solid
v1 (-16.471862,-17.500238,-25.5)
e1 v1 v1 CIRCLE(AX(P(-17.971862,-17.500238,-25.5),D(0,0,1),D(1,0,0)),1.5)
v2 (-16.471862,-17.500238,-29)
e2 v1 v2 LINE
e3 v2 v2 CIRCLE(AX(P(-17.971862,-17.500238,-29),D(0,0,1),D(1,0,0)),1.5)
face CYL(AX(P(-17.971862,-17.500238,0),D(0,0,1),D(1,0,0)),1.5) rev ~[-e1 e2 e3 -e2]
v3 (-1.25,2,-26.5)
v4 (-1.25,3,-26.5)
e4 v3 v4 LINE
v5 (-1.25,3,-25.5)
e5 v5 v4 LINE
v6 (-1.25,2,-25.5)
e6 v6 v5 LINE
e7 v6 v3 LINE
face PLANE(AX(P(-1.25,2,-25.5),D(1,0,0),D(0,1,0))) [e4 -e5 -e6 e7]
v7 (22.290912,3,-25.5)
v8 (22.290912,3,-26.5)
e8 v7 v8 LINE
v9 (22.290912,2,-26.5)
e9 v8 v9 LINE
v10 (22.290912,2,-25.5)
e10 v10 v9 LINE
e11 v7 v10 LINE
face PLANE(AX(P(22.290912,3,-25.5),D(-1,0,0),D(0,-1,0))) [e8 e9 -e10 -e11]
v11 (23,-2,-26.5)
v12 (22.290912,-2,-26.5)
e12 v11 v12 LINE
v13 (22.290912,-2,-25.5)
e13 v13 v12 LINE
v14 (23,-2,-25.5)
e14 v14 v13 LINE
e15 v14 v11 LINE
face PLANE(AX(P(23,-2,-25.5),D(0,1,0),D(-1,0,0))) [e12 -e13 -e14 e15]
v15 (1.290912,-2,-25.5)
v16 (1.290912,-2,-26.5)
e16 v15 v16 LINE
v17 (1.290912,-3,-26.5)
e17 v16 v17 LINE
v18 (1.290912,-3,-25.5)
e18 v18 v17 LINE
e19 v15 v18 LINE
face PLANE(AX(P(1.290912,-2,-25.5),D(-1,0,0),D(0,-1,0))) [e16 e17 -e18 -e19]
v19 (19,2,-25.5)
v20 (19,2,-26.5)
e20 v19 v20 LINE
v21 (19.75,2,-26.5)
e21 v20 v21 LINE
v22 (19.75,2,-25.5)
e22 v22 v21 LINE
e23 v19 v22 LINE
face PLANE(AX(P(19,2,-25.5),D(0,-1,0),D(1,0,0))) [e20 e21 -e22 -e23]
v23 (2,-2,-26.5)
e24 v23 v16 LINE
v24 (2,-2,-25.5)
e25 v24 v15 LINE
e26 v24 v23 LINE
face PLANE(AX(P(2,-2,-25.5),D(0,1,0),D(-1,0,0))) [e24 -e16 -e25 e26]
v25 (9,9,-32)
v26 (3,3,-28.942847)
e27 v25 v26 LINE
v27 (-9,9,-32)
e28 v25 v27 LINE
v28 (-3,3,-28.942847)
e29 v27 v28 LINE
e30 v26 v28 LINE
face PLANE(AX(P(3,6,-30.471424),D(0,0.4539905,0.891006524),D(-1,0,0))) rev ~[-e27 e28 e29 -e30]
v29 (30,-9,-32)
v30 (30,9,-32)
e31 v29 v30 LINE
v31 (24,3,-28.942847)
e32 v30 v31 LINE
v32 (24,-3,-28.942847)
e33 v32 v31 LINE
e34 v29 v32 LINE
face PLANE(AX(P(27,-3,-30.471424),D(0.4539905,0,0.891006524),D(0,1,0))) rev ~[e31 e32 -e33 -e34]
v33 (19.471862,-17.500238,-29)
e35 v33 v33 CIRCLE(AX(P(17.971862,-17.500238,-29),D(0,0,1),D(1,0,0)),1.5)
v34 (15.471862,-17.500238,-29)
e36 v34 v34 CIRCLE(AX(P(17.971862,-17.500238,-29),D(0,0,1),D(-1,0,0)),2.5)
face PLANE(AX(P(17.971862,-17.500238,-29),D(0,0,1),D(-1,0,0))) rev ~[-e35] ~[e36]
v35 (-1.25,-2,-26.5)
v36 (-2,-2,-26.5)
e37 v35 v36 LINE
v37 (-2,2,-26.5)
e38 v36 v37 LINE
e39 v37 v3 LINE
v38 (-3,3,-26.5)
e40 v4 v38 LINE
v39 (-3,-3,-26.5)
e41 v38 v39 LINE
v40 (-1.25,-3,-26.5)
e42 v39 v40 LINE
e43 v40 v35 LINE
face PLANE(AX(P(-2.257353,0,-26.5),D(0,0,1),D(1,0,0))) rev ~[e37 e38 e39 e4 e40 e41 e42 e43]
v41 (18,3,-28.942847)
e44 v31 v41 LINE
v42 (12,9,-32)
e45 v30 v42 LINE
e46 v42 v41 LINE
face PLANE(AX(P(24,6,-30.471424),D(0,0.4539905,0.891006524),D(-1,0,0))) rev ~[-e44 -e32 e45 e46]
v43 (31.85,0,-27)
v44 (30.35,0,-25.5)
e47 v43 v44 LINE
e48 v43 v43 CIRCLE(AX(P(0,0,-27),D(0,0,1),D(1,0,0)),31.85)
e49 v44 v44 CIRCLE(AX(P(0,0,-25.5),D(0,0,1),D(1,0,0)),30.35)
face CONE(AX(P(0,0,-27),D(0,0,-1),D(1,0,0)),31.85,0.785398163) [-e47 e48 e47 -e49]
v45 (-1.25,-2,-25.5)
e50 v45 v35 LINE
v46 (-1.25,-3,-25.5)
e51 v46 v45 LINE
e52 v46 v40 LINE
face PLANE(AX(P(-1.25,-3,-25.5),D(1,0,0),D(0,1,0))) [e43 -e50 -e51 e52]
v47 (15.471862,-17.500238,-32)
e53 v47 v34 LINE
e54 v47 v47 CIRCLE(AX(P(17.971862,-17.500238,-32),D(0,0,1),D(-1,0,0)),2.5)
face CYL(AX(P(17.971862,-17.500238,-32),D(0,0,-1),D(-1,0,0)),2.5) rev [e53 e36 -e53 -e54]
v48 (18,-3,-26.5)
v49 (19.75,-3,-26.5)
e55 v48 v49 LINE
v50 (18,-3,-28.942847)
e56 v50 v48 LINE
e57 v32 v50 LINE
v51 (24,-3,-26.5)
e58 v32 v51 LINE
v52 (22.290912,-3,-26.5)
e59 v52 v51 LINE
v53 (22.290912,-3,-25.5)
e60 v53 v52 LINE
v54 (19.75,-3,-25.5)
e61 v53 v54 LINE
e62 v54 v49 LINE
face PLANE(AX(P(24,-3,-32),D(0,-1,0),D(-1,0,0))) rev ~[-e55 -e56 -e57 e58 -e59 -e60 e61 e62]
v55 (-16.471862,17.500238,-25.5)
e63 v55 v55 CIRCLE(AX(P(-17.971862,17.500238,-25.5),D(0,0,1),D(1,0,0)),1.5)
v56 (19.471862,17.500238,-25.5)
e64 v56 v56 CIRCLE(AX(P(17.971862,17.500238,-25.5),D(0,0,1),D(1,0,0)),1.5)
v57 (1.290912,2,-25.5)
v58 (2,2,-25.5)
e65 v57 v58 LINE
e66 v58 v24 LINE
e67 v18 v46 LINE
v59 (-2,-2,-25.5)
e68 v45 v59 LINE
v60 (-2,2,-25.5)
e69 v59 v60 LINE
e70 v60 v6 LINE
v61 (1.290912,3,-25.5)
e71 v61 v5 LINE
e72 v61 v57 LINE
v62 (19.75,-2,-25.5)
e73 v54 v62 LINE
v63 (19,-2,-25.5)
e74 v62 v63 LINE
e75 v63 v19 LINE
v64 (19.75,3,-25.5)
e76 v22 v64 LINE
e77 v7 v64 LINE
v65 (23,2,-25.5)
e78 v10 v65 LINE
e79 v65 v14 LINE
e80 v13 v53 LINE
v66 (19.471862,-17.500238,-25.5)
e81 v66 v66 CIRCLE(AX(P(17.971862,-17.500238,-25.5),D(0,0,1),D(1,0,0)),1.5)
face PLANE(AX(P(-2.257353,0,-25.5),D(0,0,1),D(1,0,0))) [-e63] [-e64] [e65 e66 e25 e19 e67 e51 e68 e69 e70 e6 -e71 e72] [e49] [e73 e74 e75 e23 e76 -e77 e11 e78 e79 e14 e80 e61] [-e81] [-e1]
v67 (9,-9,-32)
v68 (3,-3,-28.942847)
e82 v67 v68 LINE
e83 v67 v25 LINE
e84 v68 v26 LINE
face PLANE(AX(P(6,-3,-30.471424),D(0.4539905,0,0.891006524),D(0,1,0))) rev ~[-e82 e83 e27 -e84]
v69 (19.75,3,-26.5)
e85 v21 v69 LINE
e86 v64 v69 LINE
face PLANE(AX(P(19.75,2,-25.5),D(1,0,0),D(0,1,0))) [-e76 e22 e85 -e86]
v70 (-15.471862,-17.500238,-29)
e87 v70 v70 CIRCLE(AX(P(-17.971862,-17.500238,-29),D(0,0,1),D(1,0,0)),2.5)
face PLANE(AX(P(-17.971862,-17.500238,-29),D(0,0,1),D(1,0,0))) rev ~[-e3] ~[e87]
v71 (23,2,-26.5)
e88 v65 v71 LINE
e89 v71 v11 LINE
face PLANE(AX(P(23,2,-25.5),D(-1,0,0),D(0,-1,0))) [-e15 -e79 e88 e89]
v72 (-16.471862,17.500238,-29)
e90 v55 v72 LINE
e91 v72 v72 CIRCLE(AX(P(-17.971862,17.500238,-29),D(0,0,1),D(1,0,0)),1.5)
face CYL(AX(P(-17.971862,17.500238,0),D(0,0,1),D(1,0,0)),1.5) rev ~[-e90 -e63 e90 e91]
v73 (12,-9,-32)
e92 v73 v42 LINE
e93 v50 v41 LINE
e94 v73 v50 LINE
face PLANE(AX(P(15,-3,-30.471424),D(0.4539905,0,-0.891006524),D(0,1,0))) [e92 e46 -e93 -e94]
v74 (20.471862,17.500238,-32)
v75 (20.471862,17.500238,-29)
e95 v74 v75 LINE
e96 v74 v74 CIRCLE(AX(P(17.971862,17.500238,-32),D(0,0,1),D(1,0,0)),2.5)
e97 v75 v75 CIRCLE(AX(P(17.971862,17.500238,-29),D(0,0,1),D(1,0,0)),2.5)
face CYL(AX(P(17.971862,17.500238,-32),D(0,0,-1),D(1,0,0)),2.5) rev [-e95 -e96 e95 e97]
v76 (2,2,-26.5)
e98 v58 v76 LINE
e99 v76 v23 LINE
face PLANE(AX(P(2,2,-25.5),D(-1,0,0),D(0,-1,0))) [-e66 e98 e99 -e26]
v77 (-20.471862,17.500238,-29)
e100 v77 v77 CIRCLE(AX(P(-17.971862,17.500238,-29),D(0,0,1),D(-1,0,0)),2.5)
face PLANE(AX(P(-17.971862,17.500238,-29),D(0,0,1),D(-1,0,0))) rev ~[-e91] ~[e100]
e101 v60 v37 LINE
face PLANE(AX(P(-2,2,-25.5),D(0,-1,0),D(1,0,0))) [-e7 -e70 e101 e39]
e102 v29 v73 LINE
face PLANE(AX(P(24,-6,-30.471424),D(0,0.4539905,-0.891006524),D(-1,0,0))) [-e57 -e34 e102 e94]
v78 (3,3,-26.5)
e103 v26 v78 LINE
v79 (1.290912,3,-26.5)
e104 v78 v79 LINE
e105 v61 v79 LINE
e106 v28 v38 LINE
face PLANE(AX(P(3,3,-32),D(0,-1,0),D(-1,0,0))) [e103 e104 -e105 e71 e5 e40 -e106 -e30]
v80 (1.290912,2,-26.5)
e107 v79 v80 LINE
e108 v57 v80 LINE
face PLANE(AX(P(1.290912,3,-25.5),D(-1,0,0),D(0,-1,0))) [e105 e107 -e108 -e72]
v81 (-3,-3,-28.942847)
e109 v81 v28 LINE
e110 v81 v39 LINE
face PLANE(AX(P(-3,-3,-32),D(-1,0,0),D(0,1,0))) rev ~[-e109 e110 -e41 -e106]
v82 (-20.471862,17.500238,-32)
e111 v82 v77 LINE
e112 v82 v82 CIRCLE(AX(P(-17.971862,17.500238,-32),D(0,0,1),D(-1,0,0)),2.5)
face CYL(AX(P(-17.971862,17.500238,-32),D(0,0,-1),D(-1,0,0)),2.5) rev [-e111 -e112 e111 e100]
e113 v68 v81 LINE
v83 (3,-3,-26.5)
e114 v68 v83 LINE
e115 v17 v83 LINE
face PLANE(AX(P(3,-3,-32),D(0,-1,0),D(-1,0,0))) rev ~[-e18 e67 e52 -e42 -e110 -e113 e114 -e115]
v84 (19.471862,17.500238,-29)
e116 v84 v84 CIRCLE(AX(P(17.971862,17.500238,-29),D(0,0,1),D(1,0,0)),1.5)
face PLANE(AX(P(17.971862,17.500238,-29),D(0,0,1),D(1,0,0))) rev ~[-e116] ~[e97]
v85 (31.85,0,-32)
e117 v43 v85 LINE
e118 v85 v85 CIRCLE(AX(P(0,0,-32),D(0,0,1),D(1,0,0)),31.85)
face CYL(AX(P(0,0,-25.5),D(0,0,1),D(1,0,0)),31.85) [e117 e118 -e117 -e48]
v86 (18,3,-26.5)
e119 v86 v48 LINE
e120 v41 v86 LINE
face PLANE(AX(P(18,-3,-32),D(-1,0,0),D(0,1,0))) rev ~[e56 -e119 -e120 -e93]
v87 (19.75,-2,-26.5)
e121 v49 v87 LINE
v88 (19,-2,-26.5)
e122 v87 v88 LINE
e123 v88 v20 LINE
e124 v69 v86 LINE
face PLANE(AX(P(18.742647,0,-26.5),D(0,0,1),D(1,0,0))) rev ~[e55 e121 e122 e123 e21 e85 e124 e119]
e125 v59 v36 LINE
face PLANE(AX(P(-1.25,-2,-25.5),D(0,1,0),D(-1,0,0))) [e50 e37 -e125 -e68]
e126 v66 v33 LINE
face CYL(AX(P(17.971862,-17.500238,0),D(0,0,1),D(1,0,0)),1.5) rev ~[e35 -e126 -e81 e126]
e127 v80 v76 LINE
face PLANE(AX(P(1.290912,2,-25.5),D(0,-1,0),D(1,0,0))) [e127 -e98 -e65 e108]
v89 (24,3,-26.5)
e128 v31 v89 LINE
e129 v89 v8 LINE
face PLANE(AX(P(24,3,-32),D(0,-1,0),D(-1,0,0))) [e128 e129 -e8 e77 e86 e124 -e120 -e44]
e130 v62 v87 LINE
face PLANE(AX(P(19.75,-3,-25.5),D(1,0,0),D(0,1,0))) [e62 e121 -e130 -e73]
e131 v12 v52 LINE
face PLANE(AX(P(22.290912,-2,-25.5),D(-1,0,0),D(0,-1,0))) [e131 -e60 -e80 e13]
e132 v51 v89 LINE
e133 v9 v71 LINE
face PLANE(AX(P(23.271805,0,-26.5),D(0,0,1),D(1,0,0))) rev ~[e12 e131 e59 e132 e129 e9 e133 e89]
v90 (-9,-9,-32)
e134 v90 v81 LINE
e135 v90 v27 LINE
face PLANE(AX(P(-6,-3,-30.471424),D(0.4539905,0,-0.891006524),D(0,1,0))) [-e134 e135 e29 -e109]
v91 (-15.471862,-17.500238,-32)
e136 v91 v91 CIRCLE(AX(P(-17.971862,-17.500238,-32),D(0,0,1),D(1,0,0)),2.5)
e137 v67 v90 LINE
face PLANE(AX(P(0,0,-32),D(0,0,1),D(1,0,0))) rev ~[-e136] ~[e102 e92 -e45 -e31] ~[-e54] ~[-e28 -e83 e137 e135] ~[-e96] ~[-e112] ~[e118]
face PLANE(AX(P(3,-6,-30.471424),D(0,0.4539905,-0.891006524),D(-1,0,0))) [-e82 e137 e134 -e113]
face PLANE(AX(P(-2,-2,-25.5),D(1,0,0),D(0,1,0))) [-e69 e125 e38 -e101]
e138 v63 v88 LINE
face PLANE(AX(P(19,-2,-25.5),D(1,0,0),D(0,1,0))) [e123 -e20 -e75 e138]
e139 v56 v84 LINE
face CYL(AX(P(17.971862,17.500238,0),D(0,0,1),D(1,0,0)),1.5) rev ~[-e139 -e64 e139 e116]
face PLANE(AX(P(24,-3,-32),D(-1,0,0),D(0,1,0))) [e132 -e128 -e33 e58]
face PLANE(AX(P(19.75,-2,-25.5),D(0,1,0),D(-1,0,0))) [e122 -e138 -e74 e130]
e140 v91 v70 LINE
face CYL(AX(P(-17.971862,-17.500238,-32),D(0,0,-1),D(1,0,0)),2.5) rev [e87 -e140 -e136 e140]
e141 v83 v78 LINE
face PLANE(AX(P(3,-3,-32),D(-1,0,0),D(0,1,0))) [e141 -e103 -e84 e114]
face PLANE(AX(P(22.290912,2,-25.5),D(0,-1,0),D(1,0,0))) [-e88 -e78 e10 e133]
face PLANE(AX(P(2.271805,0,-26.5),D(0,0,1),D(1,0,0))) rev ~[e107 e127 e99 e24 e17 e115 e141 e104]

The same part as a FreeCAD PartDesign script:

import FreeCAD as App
import Part
import Sketcher
from FreeCAD import Vector


def edges_at(feature, points):
    """Names of the edges that pass closest to the given points."""
    edges = feature.Shape.Edges
    near = lambda p: min(range(len(edges)), key=lambda i: edges[i].distToShape(Part.Vertex(*p))[0])
    return sorted({f"Edge{near(p) + 1}" for p in points})


def add_polygon(sketch, points):
    """Adds a closed chain of lines whose ends are joined by coincident constraints."""
    first, n = sketch.GeometryCount, len(points)
    for a, b in zip(points, points[1:] + points[:1]):
        sketch.addGeometry(Part.LineSegment(App.Vector(*a, 0), App.Vector(*b, 0)), False)
    for i in range(n):
        sketch.addConstraint(Sketcher.Constraint("Coincident", first + i, 2, first + (i + 1) % n, 1))

doc = App.newDocument("Part")
body = doc.addObject("PartDesign::Body", "Body")

# Sketch on XY plane
sketch1 = body.newObject("Sketcher::SketchObject", "Sketch")
sketch1.AttachmentSupport = (doc.getObject("XY_Plane"), [""])
sketch1.MapMode = "FlatFace"
sketch1.AttachmentOffset = App.Placement(Vector(0, 0, -25.5), App.Rotation())
sketch1.addGeometry(Part.Circle(Vector(0, 0, 0), Vector(0, 0, 1), 32), False)
sketch1.addConstraint(Sketcher.Constraint("Coincident", 0, 3, -1, 1))
sketch1.addConstraint(Sketcher.Constraint("Diameter", 0, 63.7))
pad1 = body.newObject("PartDesign::Pad", "Pad")
pad1.Profile = sketch1
pad1.Length = 6.5
pad1.Reversed = True

# Sketch on XY plane
sketch2 = body.newObject("Sketcher::SketchObject", "Sketch001")
sketch2.AttachmentSupport = (doc.getObject("XY_Plane"), [""])
sketch2.MapMode = "FlatFace"
sketch2.AttachmentOffset = App.Placement(Vector(0, 0, -32), App.Rotation())
add_polygon(sketch2, [(24, 3), (24, -3), (18, -3), (18, 3)])  # lines 0-3
add_polygon(sketch2, [(3, 3), (3, -3), (-3, -3), (-3, 3)])  # lines 4-7
sketch2.addConstraint(Sketcher.Constraint("Vertical", 0))
sketch2.addConstraint(Sketcher.Constraint("Horizontal", 1))
sketch2.addConstraint(Sketcher.Constraint("Vertical", 2))
sketch2.addConstraint(Sketcher.Constraint("Horizontal", 3))
sketch2.addConstraint(Sketcher.Constraint("Vertical", 4))
sketch2.addConstraint(Sketcher.Constraint("Horizontal", 5))
sketch2.addConstraint(Sketcher.Constraint("Vertical", 6))
sketch2.addConstraint(Sketcher.Constraint("Horizontal", 7))
sketch2.addConstraint(Sketcher.Constraint("Symmetric", 4, 2, 6, 2, -1, 1))
sketch2.addConstraint(Sketcher.Constraint("Horizontal", 1, 2, 4, 2))
sketch2.addConstraint(Sketcher.Constraint("Horizontal", 3, 2, 6, 2))
sketch2.addConstraint(Sketcher.Constraint("Equal", 3, 5))
sketch2.addConstraint(Sketcher.Constraint("Equal", 7, 0))
sketch2.addConstraint(Sketcher.Constraint("DistanceX", 1, 2, 1, 1, 6.0))
sketch2.addConstraint(Sketcher.Constraint("DistanceX", -1, 1, 0, 2, 24.0))
pocket1 = body.newObject("PartDesign::Pocket", "Pocket")
pocket1.Profile = sketch2
pocket1.Length = 6.5
pocket1.Reversed = True
doc.recompute()

chamfer = body.newObject("PartDesign::Chamfer", "Chamfer")
chamfer.Base = (pocket1, edges_at(pocket1, [
    (3, 0, -32),
    (0, -3, -32),
    (-3, 0, -32),
    (0, 3, -32),
    (24, 0, -32),
    (21, -3, -32),
    (18, 0, -32),
    (21, 3, -32),
]))
chamfer.ChamferType = "Two distances"
chamfer.Size = 6
chamfer.Size2 = 3.057153

# Sketch on XY plane
sketch3 = body.newObject("Sketcher::SketchObject", "Sketch002")
sketch3.AttachmentSupport = (doc.getObject("XY_Plane"), [""])
sketch3.MapMode = "FlatFace"
sketch3.addGeometry(Part.Circle(Vector(-18, -17.5, 0), Vector(0, 0, 1), 1.5), False)
sketch3.addGeometry(Part.Circle(Vector(18, -17.5, 0), Vector(0, 0, 1), 1.5), False)
sketch3.addGeometry(Part.Circle(Vector(18, 17.5, 0), Vector(0, 0, 1), 1.5), False)
sketch3.addGeometry(Part.Circle(Vector(-18, 17.5, 0), Vector(0, 0, 1), 1.5), False)
sketch3.addConstraint(Sketcher.Constraint("Equal", 0, 1))
sketch3.addConstraint(Sketcher.Constraint("Equal", 1, 2))
sketch3.addConstraint(Sketcher.Constraint("Equal", 2, 3))
sketch3.addConstraint(Sketcher.Constraint("Symmetric", 0, 3, 2, 3, -1, 1))
sketch3.addConstraint(Sketcher.Constraint("Symmetric", 1, 3, 3, 3, -1, 1))
sketch3.addConstraint(Sketcher.Constraint("Symmetric", 0, 3, 1, 3, -2))
sketch3.addConstraint(Sketcher.Constraint("Diameter", 0, 3.0))
sketch3.addConstraint(Sketcher.Constraint("DistanceX", 0, 3, -1, 1, 17.971862))
sketch3.addConstraint(Sketcher.Constraint("DistanceY", 0, 3, -1, 1, 17.500238))
pocket2 = body.newObject("PartDesign::Pocket", "Pocket001")
pocket2.Profile = sketch3
pocket2.Type = "ThroughAll"

# Sketch on XY plane
sketch4 = body.newObject("Sketcher::SketchObject", "Sketch003")
sketch4.AttachmentSupport = (doc.getObject("XY_Plane"), [""])
sketch4.MapMode = "FlatFace"
sketch4.AttachmentOffset = App.Placement(Vector(0, 0, -32), App.Rotation())
sketch4.addGeometry(Part.Circle(Vector(-18, -17.5, 0), Vector(0, 0, 1), 2.5), False)
sketch4.addGeometry(Part.Circle(Vector(18, -17.5, 0), Vector(0, 0, 1), 2.5), False)
sketch4.addGeometry(Part.Circle(Vector(18, 17.5, 0), Vector(0, 0, 1), 2.5), False)
sketch4.addGeometry(Part.Circle(Vector(-18, 17.5, 0), Vector(0, 0, 1), 2.5), False)
sketch4.addConstraint(Sketcher.Constraint("Equal", 0, 1))
sketch4.addConstraint(Sketcher.Constraint("Equal", 1, 2))
sketch4.addConstraint(Sketcher.Constraint("Equal", 2, 3))
sketch4.addConstraint(Sketcher.Constraint("Symmetric", 0, 3, 2, 3, -1, 1))
sketch4.addConstraint(Sketcher.Constraint("Symmetric", 1, 3, 3, 3, -1, 1))
sketch4.addConstraint(Sketcher.Constraint("Symmetric", 0, 3, 1, 3, -2))
sketch4.addConstraint(Sketcher.Constraint("Diameter", 0, 5.0))
sketch4.addConstraint(Sketcher.Constraint("DistanceX", 0, 3, -1, 1, 17.971862))
sketch4.addConstraint(Sketcher.Constraint("DistanceY", 0, 3, -1, 1, 17.500238))
pocket3 = body.newObject("PartDesign::Pocket", "Pocket002")
pocket3.Profile = sketch4
pocket3.Length = 3
pocket3.Reversed = True
doc.recompute()

chamfer2 = body.newObject("PartDesign::Chamfer", "Chamfer001")
chamfer2.Base = (pocket3, edges_at(pocket3, [(-31.85, 0, -25.5)]))
chamfer2.Size = 1.5

# Sketch on XY plane
sketch5 = body.newObject("Sketcher::SketchObject", "Sketch004")
sketch5.AttachmentSupport = (doc.getObject("XY_Plane"), [""])
sketch5.MapMode = "FlatFace"
sketch5.AttachmentOffset = App.Placement(Vector(0, 0, -25.5), App.Rotation())
add_polygon(sketch5, [(-1.2, -2), (-2, -2), (-2, 2), (-1.2, 2), (-1.2, 3), (-3, 3), (-3, -3), (-1.2, -3)])  # lines 0-7
add_polygon(sketch5, [(1.3, -3), (3, -3), (3, 3), (1.3, 3), (1.3, 2), (2, 2), (2, -2), (1.3, -2)])  # lines 8-15
add_polygon(sketch5, [(19.8, -2), (19, -2), (19, 2), (19.8, 2), (19.8, 3), (18, 3), (18, -3), (19.8, -3)])  # lines 16-23
add_polygon(sketch5, [(22.3, -3), (24, -3), (24, 3), (22.3, 3), (22.3, 2), (23, 2), (23, -2), (22.3, -2)])  # lines 24-31
sketch5.addConstraint(Sketcher.Constraint("Horizontal", 0))
sketch5.addConstraint(Sketcher.Constraint("Vertical", 1))
sketch5.addConstraint(Sketcher.Constraint("Horizontal", 2))
sketch5.addConstraint(Sketcher.Constraint("Vertical", 3))
sketch5.addConstraint(Sketcher.Constraint("Horizontal", 4))
sketch5.addConstraint(Sketcher.Constraint("Vertical", 5))
sketch5.addConstraint(Sketcher.Constraint("Horizontal", 6))
sketch5.addConstraint(Sketcher.Constraint("Vertical", 7))
sketch5.addConstraint(Sketcher.Constraint("Horizontal", 8))
sketch5.addConstraint(Sketcher.Constraint("Vertical", 9))
sketch5.addConstraint(Sketcher.Constraint("Horizontal", 10))
sketch5.addConstraint(Sketcher.Constraint("Vertical", 11))
sketch5.addConstraint(Sketcher.Constraint("Horizontal", 12))
sketch5.addConstraint(Sketcher.Constraint("Vertical", 13))
sketch5.addConstraint(Sketcher.Constraint("Horizontal", 14))
sketch5.addConstraint(Sketcher.Constraint("Vertical", 15))
sketch5.addConstraint(Sketcher.Constraint("Horizontal", 16))
sketch5.addConstraint(Sketcher.Constraint("Vertical", 17))
sketch5.addConstraint(Sketcher.Constraint("Horizontal", 18))
sketch5.addConstraint(Sketcher.Constraint("Vertical", 19))
sketch5.addConstraint(Sketcher.Constraint("Horizontal", 20))
sketch5.addConstraint(Sketcher.Constraint("Vertical", 21))
sketch5.addConstraint(Sketcher.Constraint("Horizontal", 22))
sketch5.addConstraint(Sketcher.Constraint("Vertical", 23))
sketch5.addConstraint(Sketcher.Constraint("Horizontal", 24))
sketch5.addConstraint(Sketcher.Constraint("Vertical", 25))
sketch5.addConstraint(Sketcher.Constraint("Horizontal", 26))
sketch5.addConstraint(Sketcher.Constraint("Vertical", 27))
sketch5.addConstraint(Sketcher.Constraint("Horizontal", 28))
sketch5.addConstraint(Sketcher.Constraint("Vertical", 29))
sketch5.addConstraint(Sketcher.Constraint("Horizontal", 30))
sketch5.addConstraint(Sketcher.Constraint("Vertical", 31))
sketch5.addConstraint(Sketcher.Constraint("Symmetric", 4, 2, 8, 2, -1, 1))
sketch5.addConstraint(Sketcher.Constraint("Symmetric", 0, 2, 12, 2, -1, 1))
sketch5.addConstraint(Sketcher.Constraint("Symmetric", 3, 2, 6, 2, -1))
sketch5.addConstraint(Sketcher.Constraint("Symmetric", 11, 2, 14, 2, -1))
sketch5.addConstraint(Sketcher.Constraint("Symmetric", 19, 2, 22, 2, -1))
sketch5.addConstraint(Sketcher.Constraint("Symmetric", 27, 2, 30, 2, -1))
sketch5.addConstraint(Sketcher.Constraint("Horizontal", 4, 2, 9, 2))
sketch5.addConstraint(Sketcher.Constraint("Horizontal", 2, 2, 11, 2))
sketch5.addConstraint(Sketcher.Constraint("Horizontal", 14, 2, 16, 2))
sketch5.addConstraint(Sketcher.Constraint("Horizontal", 12, 2, 17, 2))
sketch5.addConstraint(Sketcher.Constraint("Horizontal", 10, 2, 19, 2))
sketch5.addConstraint(Sketcher.Constraint("Horizontal", 22, 2, 24, 2))
sketch5.addConstraint(Sketcher.Constraint("Horizontal", 20, 2, 25, 2))
sketch5.addConstraint(Sketcher.Constraint("Horizontal", 18, 2, 27, 2))
sketch5.addConstraint(Sketcher.Constraint("Equal", 2, 16))
sketch5.addConstraint(Sketcher.Constraint("Equal", 6, 20))
sketch5.addConstraint(Sketcher.Constraint("Equal", 10, 24))
sketch5.addConstraint(Sketcher.Constraint("Equal", 14, 28))
sketch5.addConstraint(Sketcher.Constraint("DistanceY", 1, 1, 1, 2, 4.0))
sketch5.addConstraint(Sketcher.Constraint("DistanceY", 3, 1, 3, 2, 1.0))
sketch5.addConstraint(Sketcher.Constraint("DistanceX", 0, 2, -1, 1, 2.0))
sketch5.addConstraint(Sketcher.Constraint("DistanceX", 4, 2, -1, 1, 3.0))
sketch5.addConstraint(Sketcher.Constraint("DistanceX", -1, 1, 16, 2, 19.0))
sketch5.addConstraint(Sketcher.Constraint("DistanceX", -1, 1, 24, 2, 24.0))
sketch5.addConstraint(Sketcher.Constraint("DistanceX", 0, 2, 0, 1, 0.75))
sketch5.addConstraint(Sketcher.Constraint("DistanceX", 8, 1, 8, 2, 1.709088))
pad2 = body.newObject("PartDesign::Pad", "Pad001")
pad2.Profile = sketch5
pad2.Length = 1
pad2.Reversed = True

doc.recompute()
